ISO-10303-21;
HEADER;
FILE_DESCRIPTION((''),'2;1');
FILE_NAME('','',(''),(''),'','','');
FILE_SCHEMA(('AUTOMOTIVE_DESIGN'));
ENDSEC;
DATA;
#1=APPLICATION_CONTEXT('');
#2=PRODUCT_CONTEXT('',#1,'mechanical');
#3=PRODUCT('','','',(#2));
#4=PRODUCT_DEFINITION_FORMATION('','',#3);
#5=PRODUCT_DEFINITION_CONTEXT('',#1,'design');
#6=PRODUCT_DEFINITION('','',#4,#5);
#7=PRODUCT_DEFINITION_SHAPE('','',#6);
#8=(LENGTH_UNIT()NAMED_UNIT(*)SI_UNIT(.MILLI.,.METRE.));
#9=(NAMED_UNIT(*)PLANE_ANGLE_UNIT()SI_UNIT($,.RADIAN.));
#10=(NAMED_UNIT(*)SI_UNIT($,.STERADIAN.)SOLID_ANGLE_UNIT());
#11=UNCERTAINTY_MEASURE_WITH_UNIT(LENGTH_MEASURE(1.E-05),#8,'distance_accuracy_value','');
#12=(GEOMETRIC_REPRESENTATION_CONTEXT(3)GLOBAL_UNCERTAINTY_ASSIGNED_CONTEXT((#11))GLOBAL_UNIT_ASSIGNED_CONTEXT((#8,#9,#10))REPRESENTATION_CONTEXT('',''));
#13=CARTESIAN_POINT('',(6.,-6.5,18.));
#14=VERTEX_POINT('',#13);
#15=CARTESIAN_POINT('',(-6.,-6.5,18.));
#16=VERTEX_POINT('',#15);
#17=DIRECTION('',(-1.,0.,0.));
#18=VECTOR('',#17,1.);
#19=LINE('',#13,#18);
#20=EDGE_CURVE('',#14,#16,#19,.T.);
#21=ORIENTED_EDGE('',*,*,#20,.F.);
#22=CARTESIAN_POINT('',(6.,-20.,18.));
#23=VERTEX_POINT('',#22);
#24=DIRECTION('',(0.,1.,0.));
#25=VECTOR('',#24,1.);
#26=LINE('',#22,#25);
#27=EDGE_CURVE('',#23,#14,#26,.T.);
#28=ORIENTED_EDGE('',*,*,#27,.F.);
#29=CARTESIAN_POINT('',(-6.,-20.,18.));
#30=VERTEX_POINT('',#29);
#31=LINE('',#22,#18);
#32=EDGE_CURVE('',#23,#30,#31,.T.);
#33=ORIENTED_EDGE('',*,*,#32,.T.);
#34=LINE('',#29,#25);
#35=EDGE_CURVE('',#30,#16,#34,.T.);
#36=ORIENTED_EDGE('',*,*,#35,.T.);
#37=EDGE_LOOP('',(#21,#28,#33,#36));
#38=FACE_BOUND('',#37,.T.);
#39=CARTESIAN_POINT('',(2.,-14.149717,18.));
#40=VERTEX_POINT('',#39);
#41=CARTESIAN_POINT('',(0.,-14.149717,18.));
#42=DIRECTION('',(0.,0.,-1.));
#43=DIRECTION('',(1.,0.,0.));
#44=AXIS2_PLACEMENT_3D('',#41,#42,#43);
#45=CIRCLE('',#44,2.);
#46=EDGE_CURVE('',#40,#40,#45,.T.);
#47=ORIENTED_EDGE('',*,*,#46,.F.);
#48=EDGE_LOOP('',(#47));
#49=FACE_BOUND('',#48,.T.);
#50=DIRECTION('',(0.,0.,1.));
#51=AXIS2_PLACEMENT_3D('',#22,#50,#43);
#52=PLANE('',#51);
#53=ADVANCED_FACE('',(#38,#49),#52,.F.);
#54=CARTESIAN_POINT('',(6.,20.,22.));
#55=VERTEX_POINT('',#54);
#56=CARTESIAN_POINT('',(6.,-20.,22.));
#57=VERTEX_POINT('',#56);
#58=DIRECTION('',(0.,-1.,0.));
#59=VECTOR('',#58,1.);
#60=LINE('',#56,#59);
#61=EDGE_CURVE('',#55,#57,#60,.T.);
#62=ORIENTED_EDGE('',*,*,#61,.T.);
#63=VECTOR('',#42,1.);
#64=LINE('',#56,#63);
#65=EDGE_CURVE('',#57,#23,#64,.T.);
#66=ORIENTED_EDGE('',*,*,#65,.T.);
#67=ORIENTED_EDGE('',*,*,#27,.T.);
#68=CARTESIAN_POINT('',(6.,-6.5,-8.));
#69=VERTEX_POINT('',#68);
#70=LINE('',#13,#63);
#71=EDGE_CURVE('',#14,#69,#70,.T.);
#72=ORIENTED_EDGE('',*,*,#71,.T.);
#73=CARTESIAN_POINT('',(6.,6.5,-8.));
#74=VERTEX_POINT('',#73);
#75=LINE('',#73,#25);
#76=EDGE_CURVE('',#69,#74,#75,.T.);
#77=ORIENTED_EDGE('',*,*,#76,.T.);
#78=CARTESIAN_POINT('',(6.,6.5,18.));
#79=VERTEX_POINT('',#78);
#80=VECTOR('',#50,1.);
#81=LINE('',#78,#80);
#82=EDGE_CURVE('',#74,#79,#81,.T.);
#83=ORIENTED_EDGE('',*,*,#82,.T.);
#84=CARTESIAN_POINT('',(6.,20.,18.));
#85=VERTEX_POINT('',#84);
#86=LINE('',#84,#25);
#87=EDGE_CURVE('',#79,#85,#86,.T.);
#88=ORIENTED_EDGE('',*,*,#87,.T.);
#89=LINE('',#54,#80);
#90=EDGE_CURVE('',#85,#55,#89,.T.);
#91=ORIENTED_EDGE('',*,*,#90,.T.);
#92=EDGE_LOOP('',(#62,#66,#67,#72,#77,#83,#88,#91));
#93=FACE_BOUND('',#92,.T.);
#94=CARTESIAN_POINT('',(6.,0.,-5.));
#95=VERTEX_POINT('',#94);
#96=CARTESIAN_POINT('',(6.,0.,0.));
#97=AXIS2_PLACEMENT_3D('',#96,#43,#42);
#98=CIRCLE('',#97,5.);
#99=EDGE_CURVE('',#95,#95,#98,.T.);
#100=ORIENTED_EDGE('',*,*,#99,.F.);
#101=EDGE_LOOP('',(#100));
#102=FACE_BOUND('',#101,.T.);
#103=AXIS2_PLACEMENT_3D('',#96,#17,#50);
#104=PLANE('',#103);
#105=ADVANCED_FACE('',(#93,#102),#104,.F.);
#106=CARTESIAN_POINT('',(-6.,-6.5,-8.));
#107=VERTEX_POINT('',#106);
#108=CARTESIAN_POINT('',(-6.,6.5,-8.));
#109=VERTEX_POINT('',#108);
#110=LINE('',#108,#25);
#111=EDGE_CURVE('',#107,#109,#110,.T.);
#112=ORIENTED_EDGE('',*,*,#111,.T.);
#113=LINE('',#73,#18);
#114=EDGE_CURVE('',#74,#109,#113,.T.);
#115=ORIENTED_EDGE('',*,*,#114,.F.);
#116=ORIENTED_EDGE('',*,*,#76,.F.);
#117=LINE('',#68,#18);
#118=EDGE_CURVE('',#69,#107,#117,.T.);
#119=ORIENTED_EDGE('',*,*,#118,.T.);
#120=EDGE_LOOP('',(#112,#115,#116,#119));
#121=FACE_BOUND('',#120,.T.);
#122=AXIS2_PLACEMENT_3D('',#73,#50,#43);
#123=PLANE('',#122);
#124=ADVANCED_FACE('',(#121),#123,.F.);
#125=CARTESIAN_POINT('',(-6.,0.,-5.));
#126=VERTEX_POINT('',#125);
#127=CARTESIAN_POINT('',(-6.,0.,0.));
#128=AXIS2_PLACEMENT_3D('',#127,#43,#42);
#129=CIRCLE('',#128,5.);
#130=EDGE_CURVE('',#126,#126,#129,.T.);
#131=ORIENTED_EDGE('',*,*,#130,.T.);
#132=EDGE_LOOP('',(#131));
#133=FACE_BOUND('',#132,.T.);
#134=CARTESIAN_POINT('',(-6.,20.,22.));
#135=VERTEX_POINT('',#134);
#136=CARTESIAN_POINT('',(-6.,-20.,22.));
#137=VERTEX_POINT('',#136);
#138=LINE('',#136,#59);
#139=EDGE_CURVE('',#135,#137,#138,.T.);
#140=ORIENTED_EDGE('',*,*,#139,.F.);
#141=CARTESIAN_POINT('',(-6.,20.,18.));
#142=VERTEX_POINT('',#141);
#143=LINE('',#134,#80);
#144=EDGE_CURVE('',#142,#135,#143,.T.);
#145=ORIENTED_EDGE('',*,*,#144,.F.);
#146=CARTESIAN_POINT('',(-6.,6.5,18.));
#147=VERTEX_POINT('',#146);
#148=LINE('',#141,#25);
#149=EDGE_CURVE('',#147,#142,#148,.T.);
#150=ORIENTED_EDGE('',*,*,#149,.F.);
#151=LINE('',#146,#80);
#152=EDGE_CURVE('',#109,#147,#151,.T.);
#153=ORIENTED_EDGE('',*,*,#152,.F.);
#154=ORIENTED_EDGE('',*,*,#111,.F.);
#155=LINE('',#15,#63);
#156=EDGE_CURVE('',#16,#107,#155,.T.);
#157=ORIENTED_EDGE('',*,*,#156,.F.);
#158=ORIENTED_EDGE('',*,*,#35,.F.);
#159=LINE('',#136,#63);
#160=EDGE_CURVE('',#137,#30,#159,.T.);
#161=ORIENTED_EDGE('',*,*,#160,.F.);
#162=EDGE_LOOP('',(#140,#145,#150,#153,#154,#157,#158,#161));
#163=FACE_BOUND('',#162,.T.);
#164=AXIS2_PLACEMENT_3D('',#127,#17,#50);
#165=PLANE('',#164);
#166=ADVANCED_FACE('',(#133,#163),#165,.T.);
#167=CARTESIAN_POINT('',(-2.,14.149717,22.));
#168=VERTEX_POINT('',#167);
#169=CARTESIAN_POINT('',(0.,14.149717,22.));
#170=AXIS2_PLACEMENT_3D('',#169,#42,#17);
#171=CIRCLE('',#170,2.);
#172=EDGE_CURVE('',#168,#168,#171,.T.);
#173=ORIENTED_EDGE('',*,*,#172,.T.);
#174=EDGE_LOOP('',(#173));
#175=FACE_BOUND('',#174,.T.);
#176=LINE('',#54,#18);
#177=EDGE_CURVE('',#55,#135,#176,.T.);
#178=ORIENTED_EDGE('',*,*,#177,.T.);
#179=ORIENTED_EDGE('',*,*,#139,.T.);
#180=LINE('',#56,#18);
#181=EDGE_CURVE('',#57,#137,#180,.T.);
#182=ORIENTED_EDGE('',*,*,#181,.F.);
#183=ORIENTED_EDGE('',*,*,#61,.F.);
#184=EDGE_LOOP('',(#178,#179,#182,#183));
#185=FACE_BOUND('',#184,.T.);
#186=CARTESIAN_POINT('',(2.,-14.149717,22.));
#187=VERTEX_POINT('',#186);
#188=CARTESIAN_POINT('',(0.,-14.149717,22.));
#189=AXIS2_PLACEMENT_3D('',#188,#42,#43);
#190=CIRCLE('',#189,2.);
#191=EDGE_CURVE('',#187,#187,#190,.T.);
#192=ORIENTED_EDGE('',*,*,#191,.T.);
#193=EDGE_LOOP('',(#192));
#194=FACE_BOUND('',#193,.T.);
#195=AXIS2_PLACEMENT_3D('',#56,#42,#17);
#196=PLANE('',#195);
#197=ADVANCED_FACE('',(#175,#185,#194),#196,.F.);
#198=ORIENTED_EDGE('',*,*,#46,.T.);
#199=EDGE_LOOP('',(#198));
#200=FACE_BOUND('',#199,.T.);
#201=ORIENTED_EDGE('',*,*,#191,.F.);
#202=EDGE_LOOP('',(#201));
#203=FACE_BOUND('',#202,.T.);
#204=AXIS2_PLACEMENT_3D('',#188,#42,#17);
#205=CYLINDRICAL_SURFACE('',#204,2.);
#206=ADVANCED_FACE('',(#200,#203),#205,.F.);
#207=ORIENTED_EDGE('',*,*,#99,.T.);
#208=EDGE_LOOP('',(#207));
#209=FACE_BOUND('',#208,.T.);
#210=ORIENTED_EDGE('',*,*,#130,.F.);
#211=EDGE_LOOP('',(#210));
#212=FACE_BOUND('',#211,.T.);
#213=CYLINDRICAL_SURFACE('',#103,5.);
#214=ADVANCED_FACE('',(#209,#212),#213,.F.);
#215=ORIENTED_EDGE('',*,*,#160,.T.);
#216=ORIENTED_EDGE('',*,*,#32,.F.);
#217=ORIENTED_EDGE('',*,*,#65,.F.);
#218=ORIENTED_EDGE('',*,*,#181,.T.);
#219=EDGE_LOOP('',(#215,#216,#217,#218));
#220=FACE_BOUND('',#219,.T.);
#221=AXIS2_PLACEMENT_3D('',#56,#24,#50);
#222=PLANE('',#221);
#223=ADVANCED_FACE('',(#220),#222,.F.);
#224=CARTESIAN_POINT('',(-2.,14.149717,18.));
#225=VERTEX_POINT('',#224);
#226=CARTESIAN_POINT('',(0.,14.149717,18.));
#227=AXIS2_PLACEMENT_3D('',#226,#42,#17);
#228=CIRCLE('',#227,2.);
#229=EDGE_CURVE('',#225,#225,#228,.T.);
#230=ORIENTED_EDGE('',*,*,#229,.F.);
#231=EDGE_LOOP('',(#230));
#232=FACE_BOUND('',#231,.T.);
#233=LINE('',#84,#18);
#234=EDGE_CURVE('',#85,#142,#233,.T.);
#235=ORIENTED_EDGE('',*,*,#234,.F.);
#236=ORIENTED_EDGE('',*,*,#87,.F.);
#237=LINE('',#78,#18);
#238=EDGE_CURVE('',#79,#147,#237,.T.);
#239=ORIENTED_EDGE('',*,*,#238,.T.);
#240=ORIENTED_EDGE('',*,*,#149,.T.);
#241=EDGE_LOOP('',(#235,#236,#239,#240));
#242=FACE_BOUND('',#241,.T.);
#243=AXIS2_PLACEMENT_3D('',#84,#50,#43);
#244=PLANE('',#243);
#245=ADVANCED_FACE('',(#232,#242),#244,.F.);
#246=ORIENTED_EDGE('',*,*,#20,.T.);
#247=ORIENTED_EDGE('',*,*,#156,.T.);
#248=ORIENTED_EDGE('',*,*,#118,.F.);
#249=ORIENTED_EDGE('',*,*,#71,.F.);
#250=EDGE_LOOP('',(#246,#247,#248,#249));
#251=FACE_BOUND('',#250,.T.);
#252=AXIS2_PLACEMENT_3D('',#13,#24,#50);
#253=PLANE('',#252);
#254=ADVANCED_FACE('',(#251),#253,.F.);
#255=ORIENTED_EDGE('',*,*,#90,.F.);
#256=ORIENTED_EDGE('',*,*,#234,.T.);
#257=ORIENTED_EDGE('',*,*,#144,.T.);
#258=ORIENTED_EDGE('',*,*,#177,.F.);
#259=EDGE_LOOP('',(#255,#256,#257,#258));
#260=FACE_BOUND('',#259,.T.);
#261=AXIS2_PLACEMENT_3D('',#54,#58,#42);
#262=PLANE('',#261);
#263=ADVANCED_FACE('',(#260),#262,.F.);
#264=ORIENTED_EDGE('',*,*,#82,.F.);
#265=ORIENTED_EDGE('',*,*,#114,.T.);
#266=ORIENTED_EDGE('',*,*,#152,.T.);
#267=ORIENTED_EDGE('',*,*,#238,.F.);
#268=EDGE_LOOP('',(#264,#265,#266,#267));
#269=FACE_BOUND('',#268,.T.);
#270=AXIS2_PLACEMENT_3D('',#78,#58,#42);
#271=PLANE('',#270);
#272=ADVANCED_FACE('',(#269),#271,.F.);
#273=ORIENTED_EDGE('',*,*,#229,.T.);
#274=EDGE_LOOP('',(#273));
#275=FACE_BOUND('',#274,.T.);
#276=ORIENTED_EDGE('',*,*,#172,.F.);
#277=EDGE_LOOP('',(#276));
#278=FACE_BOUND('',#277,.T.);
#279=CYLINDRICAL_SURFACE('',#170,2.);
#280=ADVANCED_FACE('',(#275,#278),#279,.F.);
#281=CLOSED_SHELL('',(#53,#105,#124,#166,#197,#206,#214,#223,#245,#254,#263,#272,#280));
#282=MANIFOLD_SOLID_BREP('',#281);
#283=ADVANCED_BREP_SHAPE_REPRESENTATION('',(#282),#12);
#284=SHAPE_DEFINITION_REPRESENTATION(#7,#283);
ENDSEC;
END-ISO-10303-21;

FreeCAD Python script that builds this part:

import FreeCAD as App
import Part
import Sketcher

doc = App.newDocument("Part")
body = doc.addObject("PartDesign::Body", "Body")

sketch1 = body.newObject("Sketcher::SketchObject", "Sketch")
sketch1.AttachmentSupport = (doc.getObject("YZ_Plane"), [""])
sketch1.MapMode = "FlatFace"
sketch1.addGeometry([
    Part.LineSegment(App.Vector(20, 22, 0), App.Vector(-20, 22, 0)),
    Part.LineSegment(App.Vector(-20, 22, 0), App.Vector(-20, 18, 0)),
    Part.LineSegment(App.Vector(-20, 18, 0), App.Vector(-6.5, 18, 0)),
    Part.LineSegment(App.Vector(-6.5, 18, 0), App.Vector(-6.5, -8, 0)),
    Part.LineSegment(App.Vector(-6.5, -8, 0), App.Vector(6.5, -8, 0)),
    Part.LineSegment(App.Vector(6.5, -8, 0), App.Vector(6.5, 18, 0)),
    Part.LineSegment(App.Vector(6.5, 18, 0), App.Vector(20, 18, 0)),
    Part.LineSegment(App.Vector(20, 18, 0), App.Vector(20, 22, 0)),
    Part.Circle(App.Vector(0, 0, 0), App.Vector(0, 0, 1), 5),
], False)
sketch1.addConstraint([
    Sketcher.Constraint("Coincident", 0, 2, 1, 1),
    Sketcher.Constraint("Coincident", 1, 2, 2, 1),
    Sketcher.Constraint("Coincident", 2, 2, 3, 1),
    Sketcher.Constraint("Coincident", 3, 2, 4, 1),
    Sketcher.Constraint("Coincident", 4, 2, 5, 1),
    Sketcher.Constraint("Coincident", 5, 2, 6, 1),
    Sketcher.Constraint("Coincident", 6, 2, 7, 1),
    Sketcher.Constraint("Coincident", 7, 2, 0, 1),
    Sketcher.Constraint("Horizontal", 0),
    Sketcher.Constraint("Vertical", 1),
    Sketcher.Constraint("Horizontal", 2),
    Sketcher.Constraint("Vertical", 3),
    Sketcher.Constraint("Horizontal", 4),
    Sketcher.Constraint("Vertical", 5),
    Sketcher.Constraint("Horizontal", 6),
    Sketcher.Constraint("Vertical", 7),
    Sketcher.Constraint("Coincident", 8, 3, -1, 1),
    Sketcher.Constraint("Symmetric", 2, 2, 5, 2, -2),
    Sketcher.Constraint("Equal", 2, 6),
    Sketcher.Constraint("Diameter", 8, 10.0),
    Sketcher.Constraint("DistanceX", 0, 2, 0, 1, 40.0),
    Sketcher.Constraint("DistanceX", 4, 1, 4, 2, 13.0),
    Sketcher.Constraint("DistanceY", 1, 2, 1, 1, 4.0),
    Sketcher.Constraint("DistanceY", 3, 2, 3, 1, 26.0),
    Sketcher.Constraint("DistanceY", -1, 1, 0, 2, 22.0),
])
pad1 = body.newObject("PartDesign::Pad", "Pad")
pad1.Profile = sketch1
pad1.Length = 12
pad1.Midplane = True

sketch2 = body.newObject("Sketcher::SketchObject", "Sketch001")
sketch2.AttachmentSupport = (doc.getObject("XY_Plane"), [""])
sketch2.MapMode = "FlatFace"
sketch2.AttachmentOffset = App.Placement(App.Vector(0, 0, 18), App.Rotation())
sketch2.addGeometry([
    Part.Circle(App.Vector(0, 14.149717, 0), App.Vector(0, 0, 1), 2),
    Part.Circle(App.Vector(0, -14.149717, 0), App.Vector(0, 0, 1), 2),
], False)
sketch2.addConstraint([
    Sketcher.Constraint("Equal", 0, 1),
    Sketcher.Constraint("Symmetric", 0, 3, 1, 3, -1, 1),
    Sketcher.Constraint("PointOnObject", 0, 3, -2),
    Sketcher.Constraint("Diameter", 0, 4.0),
    Sketcher.Constraint("DistanceY", -1, 1, 0, 3, 14.149717),
])
pocket1 = body.newObject("PartDesign::Pocket", "Pocket")
pocket1.Profile = sketch2
pocket1.Type = "ThroughAll"
pocket1.Reversed = True

doc.recompute()
